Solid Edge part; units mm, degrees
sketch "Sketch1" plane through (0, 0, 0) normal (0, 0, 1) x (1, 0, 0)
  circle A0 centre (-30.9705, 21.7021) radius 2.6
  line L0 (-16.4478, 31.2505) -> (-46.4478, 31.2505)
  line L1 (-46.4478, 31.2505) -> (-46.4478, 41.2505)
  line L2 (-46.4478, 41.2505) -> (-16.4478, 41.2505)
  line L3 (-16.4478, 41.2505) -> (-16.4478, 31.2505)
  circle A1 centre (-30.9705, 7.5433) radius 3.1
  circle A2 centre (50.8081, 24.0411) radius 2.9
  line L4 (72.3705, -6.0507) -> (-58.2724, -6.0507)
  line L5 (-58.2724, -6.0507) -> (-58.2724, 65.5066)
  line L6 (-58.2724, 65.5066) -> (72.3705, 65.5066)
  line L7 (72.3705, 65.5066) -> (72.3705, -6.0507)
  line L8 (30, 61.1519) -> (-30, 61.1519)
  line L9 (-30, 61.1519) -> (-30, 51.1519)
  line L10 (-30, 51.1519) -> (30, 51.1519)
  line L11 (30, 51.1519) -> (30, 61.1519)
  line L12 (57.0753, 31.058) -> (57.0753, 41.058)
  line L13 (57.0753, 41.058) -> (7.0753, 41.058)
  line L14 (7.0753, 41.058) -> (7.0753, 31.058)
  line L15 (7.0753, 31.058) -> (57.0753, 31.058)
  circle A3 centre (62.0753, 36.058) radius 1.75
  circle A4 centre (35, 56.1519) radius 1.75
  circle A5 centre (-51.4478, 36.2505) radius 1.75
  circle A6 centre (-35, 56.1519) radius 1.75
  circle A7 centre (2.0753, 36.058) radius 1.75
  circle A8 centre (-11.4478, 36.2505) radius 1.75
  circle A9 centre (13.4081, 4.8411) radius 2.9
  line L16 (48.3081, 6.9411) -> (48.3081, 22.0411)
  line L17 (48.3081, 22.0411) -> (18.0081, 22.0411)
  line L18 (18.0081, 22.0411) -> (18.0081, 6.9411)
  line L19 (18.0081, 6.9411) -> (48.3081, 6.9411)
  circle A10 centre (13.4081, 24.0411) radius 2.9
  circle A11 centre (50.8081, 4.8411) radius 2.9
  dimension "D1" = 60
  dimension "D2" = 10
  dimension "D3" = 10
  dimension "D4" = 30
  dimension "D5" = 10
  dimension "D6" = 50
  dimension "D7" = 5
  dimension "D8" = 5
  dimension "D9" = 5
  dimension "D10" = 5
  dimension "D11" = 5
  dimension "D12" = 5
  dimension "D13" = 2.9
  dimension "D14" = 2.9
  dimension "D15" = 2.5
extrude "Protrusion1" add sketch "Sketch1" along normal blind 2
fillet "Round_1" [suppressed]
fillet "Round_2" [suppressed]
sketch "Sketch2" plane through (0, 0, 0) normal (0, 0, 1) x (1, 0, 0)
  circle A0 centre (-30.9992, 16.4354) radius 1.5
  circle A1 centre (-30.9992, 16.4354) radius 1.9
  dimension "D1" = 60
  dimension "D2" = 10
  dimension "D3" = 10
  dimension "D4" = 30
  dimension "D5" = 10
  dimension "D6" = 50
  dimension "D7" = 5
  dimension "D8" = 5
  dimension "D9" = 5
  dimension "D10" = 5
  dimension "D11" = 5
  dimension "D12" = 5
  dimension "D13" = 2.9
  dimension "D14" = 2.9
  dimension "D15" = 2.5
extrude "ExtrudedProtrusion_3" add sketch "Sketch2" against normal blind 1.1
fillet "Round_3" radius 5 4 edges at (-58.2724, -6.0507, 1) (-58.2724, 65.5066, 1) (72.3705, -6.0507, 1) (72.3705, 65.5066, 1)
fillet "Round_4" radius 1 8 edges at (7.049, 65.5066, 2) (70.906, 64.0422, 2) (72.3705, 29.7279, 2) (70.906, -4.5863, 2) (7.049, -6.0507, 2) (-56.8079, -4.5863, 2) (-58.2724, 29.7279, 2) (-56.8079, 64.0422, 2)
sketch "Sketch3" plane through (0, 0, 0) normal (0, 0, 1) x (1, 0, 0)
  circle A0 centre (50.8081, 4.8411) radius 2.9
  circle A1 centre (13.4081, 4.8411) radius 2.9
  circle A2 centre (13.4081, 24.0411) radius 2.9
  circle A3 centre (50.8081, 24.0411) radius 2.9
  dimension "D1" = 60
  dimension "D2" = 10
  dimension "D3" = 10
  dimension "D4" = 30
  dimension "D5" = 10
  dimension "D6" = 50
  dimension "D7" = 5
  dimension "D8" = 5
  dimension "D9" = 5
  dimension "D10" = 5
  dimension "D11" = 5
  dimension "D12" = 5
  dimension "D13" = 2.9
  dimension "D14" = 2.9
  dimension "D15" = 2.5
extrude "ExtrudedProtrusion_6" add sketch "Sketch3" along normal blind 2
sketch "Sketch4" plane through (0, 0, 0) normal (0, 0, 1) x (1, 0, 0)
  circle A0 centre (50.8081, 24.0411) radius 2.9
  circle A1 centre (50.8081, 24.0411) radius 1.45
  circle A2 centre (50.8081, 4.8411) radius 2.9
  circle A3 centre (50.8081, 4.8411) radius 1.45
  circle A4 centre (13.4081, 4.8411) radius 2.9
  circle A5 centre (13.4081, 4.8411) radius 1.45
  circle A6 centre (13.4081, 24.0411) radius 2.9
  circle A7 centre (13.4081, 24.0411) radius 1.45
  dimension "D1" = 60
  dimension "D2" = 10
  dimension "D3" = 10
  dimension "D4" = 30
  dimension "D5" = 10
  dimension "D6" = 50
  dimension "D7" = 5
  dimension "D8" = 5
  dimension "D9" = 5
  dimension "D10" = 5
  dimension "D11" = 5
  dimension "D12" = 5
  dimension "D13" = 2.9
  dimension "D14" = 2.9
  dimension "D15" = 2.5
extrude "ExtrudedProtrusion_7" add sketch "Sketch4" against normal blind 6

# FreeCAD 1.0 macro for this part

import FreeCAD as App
import Part
import Sketcher

V = App.Vector


def edges_at(feature, points):
    """Names of the edges that pass closest to the given points."""
    edges = feature.Shape.Edges
    near = lambda p: min(range(len(edges)), key=lambda i: edges[i].distToShape(Part.Vertex(*p))[0])
    return sorted({f"Edge{near(p) + 1}" for p in points})


def add_polygon(sketch, points):
    """Adds a closed chain of lines whose ends are joined by coincident constraints."""
    first, n = sketch.GeometryCount, len(points)
    for a, b in zip(points, points[1:] + points[:1]):
        sketch.addGeometry(Part.LineSegment(App.Vector(*a, 0), App.Vector(*b, 0)), False)
    for i in range(n):
        sketch.addConstraint(Sketcher.Constraint("Coincident", first + i, 2, first + (i + 1) % n, 1))

doc = App.newDocument("Part")
params = doc.addObject("Spreadsheet::Sheet", "Params")
for row, (alias, value) in enumerate([
    ("sketch1_diameter", "6.2 mm"),
    ("sketch1_diameter2", "5.2 mm"),
    ("sketch1_diameter3", "5.8 mm"),
    ("sketch1_diameter4", "3.5 mm"),
    ("sketch1_width", "30 mm"),
    ("pad1_length", "2 mm"),
    ("sketch2_diameter", "3 mm"),
    ("sketch2_diameter2", "3.8 mm"),
    ("pad2_length", "1.1 mm"),
    ("fillet_radius", "5 mm"),
    ("fillet2_radius", "1 mm"),
    ("sketch3_diameter", "5.8 mm"),
    ("pad3_length", "2 mm"),
    ("sketch4_diameter", "5.8 mm"),
    ("sketch4_diameter2", "2.9 mm"),
    ("pad4_length", "6 mm"),
], start=1):
    params.set(f"A{row}", alias)
    params.set(f"B{row}", "=" + value)
    params.setAlias(f"B{row}", alias)

body = doc.addObject("PartDesign::Body", "Body")

# Sketch on XY plane
sketch1 = body.newObject("Sketcher::SketchObject", "Sketch")
sketch1.AttachmentSupport = (doc.getObject("XY_Plane"), [""])
sketch1.MapMode = "FlatFace"
add_polygon(sketch1, [(-58.3, -6.1), (72.4, -6.1), (72.4, 65.5), (-58.3, 65.5)])  # lines 0-3
sketch1.addGeometry(Part.Circle(V(-31, 7.5, 0), V(0, 0, 1), 3.1), False)  # 4
sketch1.addGeometry(Part.Circle(V(-31, 21.7, 0), V(0, 0, 1), 2.6), False)  # 5
sketch1.addGeometry(Part.Circle(V(13.4, 4.8, 0), V(0, 0, 1), 2.9), False)  # 6
sketch1.addGeometry(Part.Circle(V(50.8, 4.8, 0), V(0, 0, 1), 2.9), False)  # 7
add_polygon(sketch1, [(48.3, 22), (48.3, 6.9), (18, 6.9), (18, 22)])  # lines 8-11
sketch1.addGeometry(Part.Circle(V(13.4, 24, 0), V(0, 0, 1), 2.9), False)  # 12
sketch1.addGeometry(Part.Circle(V(50.8, 24, 0), V(0, 0, 1), 2.9), False)  # 13
sketch1.addGeometry(Part.Circle(V(-51.4, 36.3, 0), V(0, 0, 1), 1.8), False)  # 14
add_polygon(sketch1, [(-16.4, 41.3), (-16.4, 31.3), (-46.4, 31.3), (-46.4, 41.3)])  # lines 15-18
sketch1.addGeometry(Part.Circle(V(-11.4, 36.3, 0), V(0, 0, 1), 1.8), False)  # 19
sketch1.addGeometry(Part.Circle(V(2.1, 36.1, 0), V(0, 0, 1), 1.8), False)  # 20
sketch1.addGeometry(Part.Circle(V(-35, 56.2, 0), V(0, 0, 1), 1.8), False)  # 21
add_polygon(sketch1, [(-30, 61.2), (30, 61.2), (30, 51.2), (-30, 51.2)])  # lines 22-25
add_polygon(sketch1, [(57.1, 41.1), (57.1, 31.1), (7.1, 31.1), (7.1, 41.1)])  # lines 26-29
sketch1.addGeometry(Part.Circle(V(62.1, 36.1, 0), V(0, 0, 1), 1.8), False)  # 30
sketch1.addGeometry(Part.Circle(V(35, 56.2, 0), V(0, 0, 1), 1.8), False)  # 31
sketch1.addConstraint(Sketcher.Constraint("Horizontal", 0))
sketch1.addConstraint(Sketcher.Constraint("Vertical", 1))
sketch1.addConstraint(Sketcher.Constraint("Horizontal", 2))
sketch1.addConstraint(Sketcher.Constraint("Vertical", 3))
sketch1.addConstraint(Sketcher.Constraint("Vertical", 8))
sketch1.addConstraint(Sketcher.Constraint("Horizontal", 9))
sketch1.addConstraint(Sketcher.Constraint("Vertical", 10))
sketch1.addConstraint(Sketcher.Constraint("Horizontal", 11))
sketch1.addConstraint(Sketcher.Constraint("Vertical", 15))
sketch1.addConstraint(Sketcher.Constraint("Horizontal", 16))
sketch1.addConstraint(Sketcher.Constraint("Vertical", 17))
sketch1.addConstraint(Sketcher.Constraint("Horizontal", 18))
sketch1.addConstraint(Sketcher.Constraint("Horizontal", 22))
sketch1.addConstraint(Sketcher.Constraint("Vertical", 23))
sketch1.addConstraint(Sketcher.Constraint("Horizontal", 24))
sketch1.addConstraint(Sketcher.Constraint("Vertical", 25))
sketch1.addConstraint(Sketcher.Constraint("Vertical", 26))
sketch1.addConstraint(Sketcher.Constraint("Horizontal", 27))
sketch1.addConstraint(Sketcher.Constraint("Vertical", 28))
sketch1.addConstraint(Sketcher.Constraint("Horizontal", 29))
sketch1.addConstraint(Sketcher.Constraint("Equal", 6, 7))
sketch1.addConstraint(Sketcher.Constraint("Equal", 7, 12))
sketch1.addConstraint(Sketcher.Constraint("Equal", 12, 13))
sketch1.addConstraint(Sketcher.Constraint("Equal", 14, 19))
sketch1.addConstraint(Sketcher.Constraint("Equal", 19, 20))
sketch1.addConstraint(Sketcher.Constraint("Equal", 20, 21))
sketch1.addConstraint(Sketcher.Constraint("Equal", 21, 30))
sketch1.addConstraint(Sketcher.Constraint("Equal", 30, 31))
sketch1.addConstraint(Sketcher.Constraint("Symmetric", 21, 3, 31, 3, -2))
sketch1.addConstraint(Sketcher.Constraint("Horizontal", 6, 3, 7, 3))
sketch1.addConstraint(Sketcher.Constraint("Horizontal", 12, 3, 13, 3))
sketch1.addConstraint(Sketcher.Constraint("Horizontal", 14, 3, 19, 3))
sketch1.addConstraint(Sketcher.Constraint("Horizontal", 20, 3, 30, 3))
sketch1.addConstraint(Sketcher.Constraint("Vertical", 4, 3, 5, 3))
sketch1.addConstraint(Sketcher.Constraint("Vertical", 6, 3, 12, 3))
sketch1.addConstraint(Sketcher.Constraint("Vertical", 7, 3, 13, 3))
sketch1.addConstraint(Sketcher.Constraint("Equal", 17, 23))
sketch1.addConstraint(Sketcher.Constraint("Equal", 25, 26))
sketch1.addConstraint(Sketcher.Constraint("Diameter", 4, 6.2))
sketch1.addConstraint(Sketcher.Constraint("Diameter", 5, 5.2))
sketch1.addConstraint(Sketcher.Constraint("Diameter", 6, 5.8))
sketch1.addConstraint(Sketcher.Constraint("Diameter", 14, 3.5))
sketch1.addConstraint(Sketcher.Constraint("DistanceX", 16, 2, 16, 1, 30.0))
sketch1.addConstraint(Sketcher.Constraint("DistanceX", 22, 1, 22, 2, 60.0))
sketch1.addConstraint(Sketcher.Constraint("DistanceX", 27, 2, 27, 1, 50.0))
sketch1.addConstraint(Sketcher.Constraint("DistanceY", 15, 2, 15, 1, 10.0))
sketch1.addConstraint(Sketcher.Constraint("DistanceX", 9, 2, 9, 1, 30.3))
sketch1.addConstraint(Sketcher.Constraint("DistanceY", 8, 2, 8, 1, 15.1))
sketch1.addConstraint(Sketcher.Constraint("DistanceX", 21, 3, -1, 1, 35.0))
sketch1.addConstraint(Sketcher.Constraint("DistanceX", -1, 1, 22, 2, 30.0))
sketch1.addConstraint(Sketcher.Constraint("DistanceX", 14, 3, 19, 3, 40.0))
sketch1.addConstraint(Sketcher.Constraint("DistanceX", 20, 3, 30, 3, 60.0))
sketch1.addConstraint(Sketcher.Constraint("DistanceY", 10, 2, 12, 3, 2.0))
sketch1.addConstraint(Sketcher.Constraint("DistanceX", 15, 2, 19, 3, 5.0))
sketch1.addConstraint(Sketcher.Constraint("DistanceY", 15, 2, 19, 3, 5.0))
sketch1.addConstraint(Sketcher.Constraint("DistanceY", 31, 3, 22, 2, 5.0))
sketch1.addConstraint(Sketcher.Constraint("DistanceX", 26, 2, 30, 3, 5.0))
sketch1.addConstraint(Sketcher.Constraint("DistanceY", 26, 2, 30, 3, 5.0))
sketch1.addConstraint(Sketcher.Constraint("DistanceX", 6, 3, 7, 3, 37.4))
sketch1.addConstraint(Sketcher.Constraint("DistanceY", 6, 3, 12, 3, 19.2))
sketch1.addConstraint(Sketcher.Constraint("DistanceX", 8, 2, 7, 3, 2.5))
sketch1.addConstraint(Sketcher.Constraint("DistanceX", 0, 1, 0, 2, 130.643))
sketch1.addConstraint(Sketcher.Constraint("DistanceY", 1, 1, 1, 2, 71.5573))
sketch1.addConstraint(Sketcher.Constraint("DistanceY", -1, 1, 5, 3, 21.702))
sketch1.addConstraint(Sketcher.Constraint("DistanceX", -1, 1, 6, 3, 13.408))
sketch1.addConstraint(Sketcher.Constraint("DistanceY", -1, 1, 6, 3, 4.841))
sketch1.addConstraint(Sketcher.Constraint("DistanceY", -1, 1, 20, 3, 36.058))
sketch1.addConstraint(Sketcher.Constraint("DistanceY", -1, 1, 21, 3, 56.152))
sketch1.addConstraint(Sketcher.Constraint("DistanceX", 14, 3, 12, 3, 64.856))
sketch1.addConstraint(Sketcher.Constraint("DistanceX", 19, 3, 20, 3, 13.523))
sketch1.addConstraint(Sketcher.Constraint("DistanceY", 14, 3, 2, 2, 29.256))
sketch1.addConstraint(Sketcher.Constraint("DistanceX", 2, 2, 5, 3, 27.302))
sketch1.addConstraint(Sketcher.Constraint("DistanceY", 3, 2, 4, 3, 13.594))
sketch1.addConstraint(Sketcher.Constraint("DistanceX", 4, 3, -1, 1, 30.9705))
sketch1.addConstraint(Sketcher.Constraint("DistanceY", -1, 1, 4, 3, 7.5433))
sketch1.setExpression("Constraints[58]", "Params.sketch1_diameter")
sketch1.setExpression("Constraints[59]", "Params.sketch1_diameter2")
sketch1.setExpression("Constraints[60]", "Params.sketch1_diameter3")
sketch1.setExpression("Constraints[61]", "Params.sketch1_diameter4")
sketch1.setExpression("Constraints[62]", "Params.sketch1_width")
pad1 = body.newObject("PartDesign::Pad", "Pad")
pad1.Profile = sketch1
pad1.setExpression("Length", "Params.pad1_length")

# Sketch on XY plane
sketch2 = body.newObject("Sketcher::SketchObject", "Sketch001")
sketch2.AttachmentSupport = (doc.getObject("XY_Plane"), [""])
sketch2.MapMode = "FlatFace"
sketch2.addGeometry(Part.Circle(V(-31, 16.4, 0), V(0, 0, 1), 1.9), False)
sketch2.addGeometry(Part.Circle(V(-31, 16.4, 0), V(0, 0, 1), 1.5), False)
sketch2.addConstraint(Sketcher.Constraint("Coincident", 1, 3, 0, 3))
sketch2.addConstraint(Sketcher.Constraint("Diameter", 1, 3.0))
sketch2.addConstraint(Sketcher.Constraint("Diameter", 0, 3.8))
sketch2.addConstraint(Sketcher.Constraint("DistanceX", 0, 3, -1, 1, 30.9992))
sketch2.addConstraint(Sketcher.Constraint("DistanceY", -1, 1, 0, 3, 16.4354))
sketch2.setExpression("Constraints[1]", "Params.sketch2_diameter")
sketch2.setExpression("Constraints[2]", "Params.sketch2_diameter2")
pad2 = body.newObject("PartDesign::Pad", "Pad001")
pad2.Profile = sketch2
pad2.setExpression("Length", "Params.pad2_length")
pad2.Reversed = True
doc.recompute()

fillet = body.newObject("PartDesign::Fillet", "Fillet")
fillet.Base = (pad2, edges_at(pad2, [
    (-58.272, -6.051, 1),
    (-58.272, 65.507, 1),
    (72.371, -6.051, 1),
    (72.371, 65.507, 1),
]))
fillet.setExpression("Radius", "Params.fillet_radius")
doc.recompute()

fillet2 = body.newObject("PartDesign::Fillet", "Fillet001")
fillet2.Base = (fillet, edges_at(fillet, [
    (7.049, 65.507, 2),
    (70.906, 64.042, 2),
    (72.371, 29.728, 2),
    (70.906, -4.586, 2),
    (7.049, -6.051, 2),
    (-56.808, -4.586, 2),
    (-58.272, 29.728, 2),
    (-56.808, 64.042, 2),
]))
fillet2.setExpression("Radius", "Params.fillet2_radius")

# Sketch on XY plane
sketch3 = body.newObject("Sketcher::SketchObject", "Sketch002")
sketch3.AttachmentSupport = (doc.getObject("XY_Plane"), [""])
sketch3.MapMode = "FlatFace"
sketch3.addGeometry(Part.Circle(V(50.8, 4.8, 0), V(0, 0, 1), 2.9), False)
sketch3.addGeometry(Part.Circle(V(13.4, 4.8, 0), V(0, 0, 1), 2.9), False)
sketch3.addGeometry(Part.Circle(V(13.4, 24, 0), V(0, 0, 1), 2.9), False)
sketch3.addGeometry(Part.Circle(V(50.8, 24, 0), V(0, 0, 1), 2.9), False)
sketch3.addConstraint(Sketcher.Constraint("Equal", 0, 1))
sketch3.addConstraint(Sketcher.Constraint("Equal", 1, 2))
sketch3.addConstraint(Sketcher.Constraint("Equal", 2, 3))
sketch3.addConstraint(Sketcher.Constraint("Horizontal", 0, 3, 1, 3))
sketch3.addConstraint(Sketcher.Constraint("Horizontal", 2, 3, 3, 3))
sketch3.addConstraint(Sketcher.Constraint("Vertical", 1, 3, 2, 3))
sketch3.addConstraint(Sketcher.Constraint("Vertical", 0, 3, 3, 3))
sketch3.addConstraint(Sketcher.Constraint("Diameter", 0, 5.8))
sketch3.addConstraint(Sketcher.Constraint("DistanceX", 1, 3, 0, 3, 37.4))
sketch3.addConstraint(Sketcher.Constraint("DistanceY", 1, 3, 2, 3, 19.2))
sketch3.addConstraint(Sketcher.Constraint("DistanceX", -1, 1, 0, 3, 50.808))
sketch3.addConstraint(Sketcher.Constraint("DistanceY", -1, 1, 0, 3, 4.841))
sketch3.setExpression("Constraints[7]", "Params.sketch3_diameter")
pad3 = body.newObject("PartDesign::Pad", "Pad002")
pad3.Profile = sketch3
pad3.setExpression("Length", "Params.pad3_length")

# Sketch on XY plane
sketch4 = body.newObject("Sketcher::SketchObject", "Sketch003")
sketch4.AttachmentSupport = (doc.getObject("XY_Plane"), [""])
sketch4.MapMode = "FlatFace"
sketch4.addGeometry(Part.Circle(V(50.8, 24, 0), V(0, 0, 1), 2.9), False)
sketch4.addGeometry(Part.Circle(V(50.8, 24, 0), V(0, 0, 1), 1.4), False)
sketch4.addGeometry(Part.Circle(V(50.8, 4.8, 0), V(0, 0, 1), 2.9), False)
sketch4.addGeometry(Part.Circle(V(50.8, 4.8, 0), V(0, 0, 1), 1.4), False)
sketch4.addGeometry(Part.Circle(V(13.4, 4.8, 0), V(0, 0, 1), 2.9), False)
sketch4.addGeometry(Part.Circle(V(13.4, 4.8, 0), V(0, 0, 1), 1.4), False)
sketch4.addGeometry(Part.Circle(V(13.4, 24, 0), V(0, 0, 1), 2.9), False)
sketch4.addGeometry(Part.Circle(V(13.4, 24, 0), V(0, 0, 1), 1.4), False)
sketch4.addConstraint(Sketcher.Constraint("Coincident", 1, 3, 0, 3))
sketch4.addConstraint(Sketcher.Constraint("Coincident", 3, 3, 2, 3))
sketch4.addConstraint(Sketcher.Constraint("Coincident", 5, 3, 4, 3))
sketch4.addConstraint(Sketcher.Constraint("Coincident", 7, 3, 6, 3))
sketch4.addConstraint(Sketcher.Constraint("Equal", 0, 2))
sketch4.addConstraint(Sketcher.Constraint("Equal", 1, 3))
sketch4.addConstraint(Sketcher.Constraint("Equal", 2, 4))
sketch4.addConstraint(Sketcher.Constraint("Equal", 3, 5))
sketch4.addConstraint(Sketcher.Constraint("Equal", 4, 6))
sketch4.addConstraint(Sketcher.Constraint("Equal", 5, 7))
sketch4.addConstraint(Sketcher.Constraint("Horizontal", 3, 3, 4, 3))
sketch4.addConstraint(Sketcher.Constraint("Horizontal", 1, 3, 6, 3))
sketch4.addConstraint(Sketcher.Constraint("Vertical", 1, 3, 2, 3))
sketch4.addConstraint(Sketcher.Constraint("Vertical", 5, 3, 6, 3))
sketch4.addConstraint(Sketcher.Constraint("Diameter", 0, 5.8))
sketch4.addConstraint(Sketcher.Constraint("Diameter", 1, 2.9))
sketch4.addConstraint(Sketcher.Constraint("DistanceY", 2, 3, 0, 3, 19.2))
sketch4.addConstraint(Sketcher.Constraint("DistanceX", 4, 3, 2, 3, 37.4))
sketch4.addConstraint(Sketcher.Constraint("DistanceX", -1, 1, 0, 3, 50.808))
sketch4.addConstraint(Sketcher.Constraint("DistanceY", -1, 1, 0, 3, 24.041))
sketch4.setExpression("Constraints[14]", "Params.sketch4_diameter")
sketch4.setExpression("Constraints[15]", "Params.sketch4_diameter2")
pad4 = body.newObject("PartDesign::Pad", "Pad003")
pad4.Profile = sketch4
pad4.setExpression("Length", "Params.pad4_length")
pad4.Reversed = True

doc.recompute()
